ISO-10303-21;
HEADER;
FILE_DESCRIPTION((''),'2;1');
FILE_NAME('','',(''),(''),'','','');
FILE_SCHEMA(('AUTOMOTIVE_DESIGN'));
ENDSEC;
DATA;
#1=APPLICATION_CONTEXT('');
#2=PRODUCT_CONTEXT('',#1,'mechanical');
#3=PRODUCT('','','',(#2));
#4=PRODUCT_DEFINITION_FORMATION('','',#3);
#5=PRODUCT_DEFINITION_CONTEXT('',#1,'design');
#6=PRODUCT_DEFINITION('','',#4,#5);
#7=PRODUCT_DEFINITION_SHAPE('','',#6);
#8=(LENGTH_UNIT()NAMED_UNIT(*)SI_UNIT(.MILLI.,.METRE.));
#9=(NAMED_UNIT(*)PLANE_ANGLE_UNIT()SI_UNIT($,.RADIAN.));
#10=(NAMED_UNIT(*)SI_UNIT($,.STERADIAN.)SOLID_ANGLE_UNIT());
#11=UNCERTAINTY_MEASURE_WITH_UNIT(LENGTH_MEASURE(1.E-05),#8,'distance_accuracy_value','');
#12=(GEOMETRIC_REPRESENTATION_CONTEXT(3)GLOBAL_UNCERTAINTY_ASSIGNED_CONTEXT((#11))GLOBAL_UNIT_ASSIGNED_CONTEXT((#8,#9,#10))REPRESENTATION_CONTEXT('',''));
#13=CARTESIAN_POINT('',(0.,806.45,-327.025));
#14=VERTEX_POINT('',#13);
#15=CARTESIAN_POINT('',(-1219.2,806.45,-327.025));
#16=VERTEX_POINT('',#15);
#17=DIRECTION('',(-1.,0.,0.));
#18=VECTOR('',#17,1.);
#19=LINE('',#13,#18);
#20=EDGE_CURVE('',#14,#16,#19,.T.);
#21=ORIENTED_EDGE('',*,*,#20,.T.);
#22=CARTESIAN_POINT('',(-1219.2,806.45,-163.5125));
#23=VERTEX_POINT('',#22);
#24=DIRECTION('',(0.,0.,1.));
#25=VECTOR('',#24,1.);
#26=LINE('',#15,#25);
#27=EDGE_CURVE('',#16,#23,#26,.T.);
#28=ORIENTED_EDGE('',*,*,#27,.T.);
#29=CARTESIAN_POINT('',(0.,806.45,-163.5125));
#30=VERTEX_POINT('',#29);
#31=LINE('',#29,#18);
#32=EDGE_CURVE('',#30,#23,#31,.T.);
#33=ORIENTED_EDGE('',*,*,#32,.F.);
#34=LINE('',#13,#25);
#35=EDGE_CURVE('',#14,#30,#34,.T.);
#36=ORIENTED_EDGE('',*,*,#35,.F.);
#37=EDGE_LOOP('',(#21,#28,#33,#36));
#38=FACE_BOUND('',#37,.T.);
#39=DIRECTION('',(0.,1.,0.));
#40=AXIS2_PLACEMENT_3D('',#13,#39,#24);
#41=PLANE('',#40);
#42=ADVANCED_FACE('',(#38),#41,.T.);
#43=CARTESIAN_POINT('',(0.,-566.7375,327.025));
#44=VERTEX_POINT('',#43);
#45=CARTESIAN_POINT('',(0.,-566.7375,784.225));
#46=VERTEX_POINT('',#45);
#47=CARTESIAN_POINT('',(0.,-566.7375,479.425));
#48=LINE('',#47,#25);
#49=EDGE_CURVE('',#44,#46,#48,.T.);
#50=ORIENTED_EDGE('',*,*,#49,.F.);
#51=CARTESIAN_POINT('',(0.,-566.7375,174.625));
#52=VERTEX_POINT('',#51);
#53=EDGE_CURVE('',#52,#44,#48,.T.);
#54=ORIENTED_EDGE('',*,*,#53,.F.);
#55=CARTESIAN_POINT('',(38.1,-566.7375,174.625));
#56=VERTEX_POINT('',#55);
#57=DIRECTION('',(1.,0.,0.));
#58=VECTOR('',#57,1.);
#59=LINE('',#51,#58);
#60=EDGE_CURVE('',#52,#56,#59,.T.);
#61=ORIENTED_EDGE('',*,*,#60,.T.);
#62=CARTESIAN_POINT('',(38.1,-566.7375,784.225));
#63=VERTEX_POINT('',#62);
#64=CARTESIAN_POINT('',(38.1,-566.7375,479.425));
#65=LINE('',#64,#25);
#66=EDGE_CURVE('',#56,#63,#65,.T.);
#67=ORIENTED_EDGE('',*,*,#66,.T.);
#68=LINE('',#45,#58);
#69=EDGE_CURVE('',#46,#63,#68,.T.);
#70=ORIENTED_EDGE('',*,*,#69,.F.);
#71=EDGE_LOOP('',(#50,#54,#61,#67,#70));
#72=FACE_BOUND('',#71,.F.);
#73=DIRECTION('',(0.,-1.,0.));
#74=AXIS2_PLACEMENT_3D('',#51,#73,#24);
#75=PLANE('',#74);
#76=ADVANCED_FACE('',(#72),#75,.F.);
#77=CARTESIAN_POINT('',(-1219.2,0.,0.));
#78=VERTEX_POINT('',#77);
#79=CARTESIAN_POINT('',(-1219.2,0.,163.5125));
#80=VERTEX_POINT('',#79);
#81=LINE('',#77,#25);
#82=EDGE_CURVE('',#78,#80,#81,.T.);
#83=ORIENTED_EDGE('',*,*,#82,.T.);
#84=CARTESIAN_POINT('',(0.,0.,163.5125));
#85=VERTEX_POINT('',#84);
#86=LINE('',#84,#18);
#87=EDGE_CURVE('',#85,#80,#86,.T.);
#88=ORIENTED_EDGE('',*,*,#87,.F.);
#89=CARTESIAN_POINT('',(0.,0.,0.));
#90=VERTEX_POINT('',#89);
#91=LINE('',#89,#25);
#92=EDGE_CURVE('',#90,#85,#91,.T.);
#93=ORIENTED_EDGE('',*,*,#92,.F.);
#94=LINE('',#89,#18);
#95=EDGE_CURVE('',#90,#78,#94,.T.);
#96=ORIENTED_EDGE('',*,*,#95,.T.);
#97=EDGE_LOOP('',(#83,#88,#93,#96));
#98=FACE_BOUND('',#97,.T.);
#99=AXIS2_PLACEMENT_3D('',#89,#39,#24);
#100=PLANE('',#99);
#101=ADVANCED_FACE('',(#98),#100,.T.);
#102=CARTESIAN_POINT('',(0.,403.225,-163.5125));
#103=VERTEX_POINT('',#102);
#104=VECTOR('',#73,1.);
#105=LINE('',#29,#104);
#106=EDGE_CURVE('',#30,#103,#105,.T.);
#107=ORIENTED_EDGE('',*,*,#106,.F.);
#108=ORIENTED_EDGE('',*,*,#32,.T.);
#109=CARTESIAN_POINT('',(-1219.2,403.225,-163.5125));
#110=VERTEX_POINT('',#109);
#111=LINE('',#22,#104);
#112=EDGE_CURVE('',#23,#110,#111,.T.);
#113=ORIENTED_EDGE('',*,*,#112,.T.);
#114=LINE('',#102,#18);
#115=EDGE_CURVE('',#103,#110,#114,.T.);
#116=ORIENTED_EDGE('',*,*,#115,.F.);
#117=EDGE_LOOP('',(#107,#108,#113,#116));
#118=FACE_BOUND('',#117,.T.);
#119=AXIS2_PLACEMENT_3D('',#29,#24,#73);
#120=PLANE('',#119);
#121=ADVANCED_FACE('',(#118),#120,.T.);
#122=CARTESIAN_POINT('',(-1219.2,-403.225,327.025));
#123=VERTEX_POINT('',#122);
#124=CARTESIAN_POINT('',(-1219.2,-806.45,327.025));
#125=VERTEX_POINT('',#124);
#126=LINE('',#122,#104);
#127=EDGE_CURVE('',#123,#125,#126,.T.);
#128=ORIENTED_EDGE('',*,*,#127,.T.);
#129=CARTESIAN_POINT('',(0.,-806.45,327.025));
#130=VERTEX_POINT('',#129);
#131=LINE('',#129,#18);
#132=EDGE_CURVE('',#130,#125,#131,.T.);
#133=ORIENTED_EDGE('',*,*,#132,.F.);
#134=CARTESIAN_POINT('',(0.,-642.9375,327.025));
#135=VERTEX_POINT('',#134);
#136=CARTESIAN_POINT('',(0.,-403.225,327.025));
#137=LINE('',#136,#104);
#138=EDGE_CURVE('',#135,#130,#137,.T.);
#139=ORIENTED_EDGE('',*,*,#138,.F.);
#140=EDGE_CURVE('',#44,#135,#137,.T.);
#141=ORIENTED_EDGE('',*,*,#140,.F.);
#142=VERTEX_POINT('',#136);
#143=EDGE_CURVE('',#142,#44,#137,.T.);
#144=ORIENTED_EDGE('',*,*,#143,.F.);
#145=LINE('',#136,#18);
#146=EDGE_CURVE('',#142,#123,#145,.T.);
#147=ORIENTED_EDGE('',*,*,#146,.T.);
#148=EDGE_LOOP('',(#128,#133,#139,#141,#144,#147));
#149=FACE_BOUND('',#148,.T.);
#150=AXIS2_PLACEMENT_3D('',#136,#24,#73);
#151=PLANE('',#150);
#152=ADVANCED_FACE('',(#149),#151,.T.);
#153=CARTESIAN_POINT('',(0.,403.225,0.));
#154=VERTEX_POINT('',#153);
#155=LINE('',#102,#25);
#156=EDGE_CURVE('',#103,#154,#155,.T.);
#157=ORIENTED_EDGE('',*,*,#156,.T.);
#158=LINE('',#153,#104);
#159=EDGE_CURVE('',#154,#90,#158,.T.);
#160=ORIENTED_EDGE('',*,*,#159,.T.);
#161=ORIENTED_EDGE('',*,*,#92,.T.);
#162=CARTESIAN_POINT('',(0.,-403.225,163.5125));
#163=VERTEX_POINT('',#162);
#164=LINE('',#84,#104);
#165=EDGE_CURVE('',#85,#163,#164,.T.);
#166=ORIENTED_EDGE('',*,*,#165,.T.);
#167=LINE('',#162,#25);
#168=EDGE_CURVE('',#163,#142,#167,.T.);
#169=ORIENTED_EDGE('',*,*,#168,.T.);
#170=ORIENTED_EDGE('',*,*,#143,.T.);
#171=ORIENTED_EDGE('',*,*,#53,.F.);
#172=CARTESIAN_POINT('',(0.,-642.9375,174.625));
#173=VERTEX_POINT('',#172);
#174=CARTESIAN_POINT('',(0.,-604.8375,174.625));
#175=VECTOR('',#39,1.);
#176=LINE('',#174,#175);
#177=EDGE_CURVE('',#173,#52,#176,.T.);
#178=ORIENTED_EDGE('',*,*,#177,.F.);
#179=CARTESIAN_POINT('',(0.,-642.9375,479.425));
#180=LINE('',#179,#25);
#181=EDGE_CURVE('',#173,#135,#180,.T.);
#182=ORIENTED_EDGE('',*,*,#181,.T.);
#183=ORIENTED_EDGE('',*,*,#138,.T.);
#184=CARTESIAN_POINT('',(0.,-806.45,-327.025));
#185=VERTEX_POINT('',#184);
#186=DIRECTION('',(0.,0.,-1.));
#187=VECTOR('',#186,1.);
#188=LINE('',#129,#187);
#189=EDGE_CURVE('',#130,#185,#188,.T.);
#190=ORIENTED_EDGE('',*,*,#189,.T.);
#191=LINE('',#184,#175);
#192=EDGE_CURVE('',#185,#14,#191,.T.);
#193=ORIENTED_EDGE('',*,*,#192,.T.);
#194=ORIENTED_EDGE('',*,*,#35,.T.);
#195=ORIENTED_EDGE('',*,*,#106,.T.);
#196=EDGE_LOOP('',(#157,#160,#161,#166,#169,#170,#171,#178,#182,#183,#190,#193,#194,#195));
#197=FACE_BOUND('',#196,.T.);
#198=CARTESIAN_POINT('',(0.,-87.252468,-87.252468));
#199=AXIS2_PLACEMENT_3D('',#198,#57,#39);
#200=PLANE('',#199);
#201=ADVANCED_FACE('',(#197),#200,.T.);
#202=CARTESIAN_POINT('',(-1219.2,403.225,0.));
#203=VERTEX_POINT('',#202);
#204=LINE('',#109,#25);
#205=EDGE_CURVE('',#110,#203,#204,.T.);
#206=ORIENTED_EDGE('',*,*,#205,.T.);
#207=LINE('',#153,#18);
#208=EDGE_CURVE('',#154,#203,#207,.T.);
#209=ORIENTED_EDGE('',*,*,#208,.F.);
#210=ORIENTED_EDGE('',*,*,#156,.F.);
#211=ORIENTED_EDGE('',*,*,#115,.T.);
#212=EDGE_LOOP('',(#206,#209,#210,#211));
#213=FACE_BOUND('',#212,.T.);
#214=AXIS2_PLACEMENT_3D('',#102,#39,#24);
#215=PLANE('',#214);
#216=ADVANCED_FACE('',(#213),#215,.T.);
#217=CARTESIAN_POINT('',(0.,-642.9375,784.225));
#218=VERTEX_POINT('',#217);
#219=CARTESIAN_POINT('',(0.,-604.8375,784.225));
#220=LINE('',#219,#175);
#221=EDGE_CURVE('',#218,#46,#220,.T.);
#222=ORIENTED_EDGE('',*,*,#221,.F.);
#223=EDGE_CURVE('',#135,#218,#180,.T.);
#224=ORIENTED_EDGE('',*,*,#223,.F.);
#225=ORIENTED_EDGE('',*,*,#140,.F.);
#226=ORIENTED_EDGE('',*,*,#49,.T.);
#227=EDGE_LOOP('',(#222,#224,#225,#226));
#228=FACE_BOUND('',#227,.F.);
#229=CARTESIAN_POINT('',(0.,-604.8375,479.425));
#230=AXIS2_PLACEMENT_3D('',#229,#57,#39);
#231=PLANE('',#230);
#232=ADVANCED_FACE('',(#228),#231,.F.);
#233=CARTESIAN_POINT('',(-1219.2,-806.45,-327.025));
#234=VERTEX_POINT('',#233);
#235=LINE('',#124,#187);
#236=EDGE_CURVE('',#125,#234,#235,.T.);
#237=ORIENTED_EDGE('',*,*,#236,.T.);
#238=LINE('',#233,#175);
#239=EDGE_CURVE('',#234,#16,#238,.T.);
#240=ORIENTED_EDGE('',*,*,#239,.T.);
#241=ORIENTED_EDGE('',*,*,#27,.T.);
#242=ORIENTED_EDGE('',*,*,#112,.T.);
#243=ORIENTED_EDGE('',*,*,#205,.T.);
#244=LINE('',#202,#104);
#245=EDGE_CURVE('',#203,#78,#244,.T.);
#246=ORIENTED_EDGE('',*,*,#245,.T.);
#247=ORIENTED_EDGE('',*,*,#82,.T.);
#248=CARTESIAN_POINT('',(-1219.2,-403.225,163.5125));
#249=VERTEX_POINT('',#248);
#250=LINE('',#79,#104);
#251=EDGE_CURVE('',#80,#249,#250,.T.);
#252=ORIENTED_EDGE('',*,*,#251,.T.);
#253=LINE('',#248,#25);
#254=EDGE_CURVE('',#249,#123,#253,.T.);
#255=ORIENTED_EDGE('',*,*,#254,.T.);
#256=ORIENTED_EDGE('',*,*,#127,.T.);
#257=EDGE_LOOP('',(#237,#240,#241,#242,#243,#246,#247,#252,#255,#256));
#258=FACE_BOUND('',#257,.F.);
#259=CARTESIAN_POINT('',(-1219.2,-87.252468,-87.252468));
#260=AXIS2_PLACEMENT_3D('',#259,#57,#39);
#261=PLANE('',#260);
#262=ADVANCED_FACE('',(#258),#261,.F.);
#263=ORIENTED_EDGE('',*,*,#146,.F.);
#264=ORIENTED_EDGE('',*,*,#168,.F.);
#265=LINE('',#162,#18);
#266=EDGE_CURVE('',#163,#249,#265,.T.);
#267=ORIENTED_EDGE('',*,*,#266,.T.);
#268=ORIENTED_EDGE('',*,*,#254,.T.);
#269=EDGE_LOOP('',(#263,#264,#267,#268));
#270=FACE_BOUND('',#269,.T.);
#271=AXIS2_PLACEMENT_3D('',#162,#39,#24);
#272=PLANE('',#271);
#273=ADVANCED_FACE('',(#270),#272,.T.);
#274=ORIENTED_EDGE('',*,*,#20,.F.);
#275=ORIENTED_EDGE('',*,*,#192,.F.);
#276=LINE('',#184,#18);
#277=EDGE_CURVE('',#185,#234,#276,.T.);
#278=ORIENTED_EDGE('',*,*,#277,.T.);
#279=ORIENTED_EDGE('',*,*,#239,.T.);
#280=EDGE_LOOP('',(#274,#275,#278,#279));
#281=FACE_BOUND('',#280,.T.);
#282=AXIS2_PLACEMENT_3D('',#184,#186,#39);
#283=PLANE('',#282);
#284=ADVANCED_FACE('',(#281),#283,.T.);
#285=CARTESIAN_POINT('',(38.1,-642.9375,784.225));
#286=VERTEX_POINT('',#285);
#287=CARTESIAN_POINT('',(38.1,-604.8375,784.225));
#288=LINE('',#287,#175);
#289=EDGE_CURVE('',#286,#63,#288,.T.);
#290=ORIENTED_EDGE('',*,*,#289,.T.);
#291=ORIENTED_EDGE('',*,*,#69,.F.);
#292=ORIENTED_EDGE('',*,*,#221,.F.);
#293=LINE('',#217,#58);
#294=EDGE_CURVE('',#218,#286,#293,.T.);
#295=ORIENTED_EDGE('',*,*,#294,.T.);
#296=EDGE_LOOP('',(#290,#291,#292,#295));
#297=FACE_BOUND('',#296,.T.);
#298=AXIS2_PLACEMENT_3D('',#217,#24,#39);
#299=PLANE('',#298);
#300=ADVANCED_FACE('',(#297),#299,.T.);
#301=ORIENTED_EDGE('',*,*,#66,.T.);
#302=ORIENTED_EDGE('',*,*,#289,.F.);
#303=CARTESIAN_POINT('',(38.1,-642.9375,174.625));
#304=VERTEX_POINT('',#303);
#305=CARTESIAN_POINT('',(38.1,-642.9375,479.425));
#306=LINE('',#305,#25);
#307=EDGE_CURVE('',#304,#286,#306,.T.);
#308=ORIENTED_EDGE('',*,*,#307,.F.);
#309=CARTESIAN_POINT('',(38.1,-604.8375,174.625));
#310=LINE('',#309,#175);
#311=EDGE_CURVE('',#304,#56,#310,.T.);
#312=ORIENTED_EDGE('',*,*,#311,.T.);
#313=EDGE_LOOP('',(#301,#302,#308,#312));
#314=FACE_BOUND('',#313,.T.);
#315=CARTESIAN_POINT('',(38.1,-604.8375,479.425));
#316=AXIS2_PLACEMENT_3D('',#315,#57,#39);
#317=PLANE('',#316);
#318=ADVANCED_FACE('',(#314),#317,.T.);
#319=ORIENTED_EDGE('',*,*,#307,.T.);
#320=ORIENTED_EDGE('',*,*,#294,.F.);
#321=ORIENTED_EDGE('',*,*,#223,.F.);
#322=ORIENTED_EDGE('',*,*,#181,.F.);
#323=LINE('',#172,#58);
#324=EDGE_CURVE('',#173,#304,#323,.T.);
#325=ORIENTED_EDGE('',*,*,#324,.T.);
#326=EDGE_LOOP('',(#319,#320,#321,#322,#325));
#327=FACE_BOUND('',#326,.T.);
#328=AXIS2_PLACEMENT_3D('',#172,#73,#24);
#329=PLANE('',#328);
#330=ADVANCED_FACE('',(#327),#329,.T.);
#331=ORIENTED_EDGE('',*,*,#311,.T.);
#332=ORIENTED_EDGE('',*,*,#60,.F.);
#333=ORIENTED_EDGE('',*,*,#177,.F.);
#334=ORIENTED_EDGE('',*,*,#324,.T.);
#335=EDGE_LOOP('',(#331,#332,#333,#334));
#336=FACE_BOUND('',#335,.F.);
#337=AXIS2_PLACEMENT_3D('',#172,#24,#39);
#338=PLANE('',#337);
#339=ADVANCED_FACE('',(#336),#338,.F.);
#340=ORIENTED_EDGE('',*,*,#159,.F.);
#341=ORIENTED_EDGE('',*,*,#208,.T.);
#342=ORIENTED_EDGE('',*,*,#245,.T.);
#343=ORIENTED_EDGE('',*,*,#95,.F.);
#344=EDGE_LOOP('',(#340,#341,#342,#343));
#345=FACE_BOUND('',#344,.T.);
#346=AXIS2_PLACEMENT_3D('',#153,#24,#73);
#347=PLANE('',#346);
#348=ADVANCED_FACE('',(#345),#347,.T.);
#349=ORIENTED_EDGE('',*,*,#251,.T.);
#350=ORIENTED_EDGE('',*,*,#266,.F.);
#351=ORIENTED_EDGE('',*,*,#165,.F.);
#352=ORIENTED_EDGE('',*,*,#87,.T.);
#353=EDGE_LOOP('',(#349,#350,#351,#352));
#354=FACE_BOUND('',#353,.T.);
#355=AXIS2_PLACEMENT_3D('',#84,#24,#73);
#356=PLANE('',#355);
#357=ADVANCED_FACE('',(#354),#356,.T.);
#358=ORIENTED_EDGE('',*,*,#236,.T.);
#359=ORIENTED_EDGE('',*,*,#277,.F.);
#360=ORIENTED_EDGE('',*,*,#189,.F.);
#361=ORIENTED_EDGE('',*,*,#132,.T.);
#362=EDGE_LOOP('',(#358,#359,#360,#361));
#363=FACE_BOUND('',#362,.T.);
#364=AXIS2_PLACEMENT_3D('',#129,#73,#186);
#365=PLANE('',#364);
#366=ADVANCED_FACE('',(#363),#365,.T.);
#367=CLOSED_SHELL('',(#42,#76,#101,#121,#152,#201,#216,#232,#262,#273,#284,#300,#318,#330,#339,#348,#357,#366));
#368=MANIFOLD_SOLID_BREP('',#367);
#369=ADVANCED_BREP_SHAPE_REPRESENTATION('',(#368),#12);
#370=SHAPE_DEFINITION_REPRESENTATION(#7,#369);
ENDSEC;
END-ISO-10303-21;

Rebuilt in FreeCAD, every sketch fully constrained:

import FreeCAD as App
import Part
import Sketcher

V = App.Vector
Q = App.Units.Quantity

doc = App.newDocument("Part")
params = doc.addObject("Spreadsheet::Sheet", "Params")
for row, (alias, value) in enumerate([
    ("sketch1_width", "63.5 in"),
    ("sketch1_height", "25.75 in"),
    ("pad1_length", "48 in"),
    ("sketch2_width", "3 in"),
    ("sketch2_height", "24 in"),
    ("pad2_length", "1.5 in"),
], start=1):
    params.set(f"A{row}", alias)
    params.set(f"B{row}", "=" + value)
    params.setAlias(f"B{row}", alias)

body = doc.addObject("PartDesign::Body", "Body")

sketch1 = doc.addObject("Sketcher::SketchObject", "Sketch")
body.addObject(sketch1)
sketch1.AttachmentSupport = (doc.YZ_Plane, [""])
sketch1.MapMode = "FlatFace"
sketch1.addGeometry(Part.LineSegment(V(-806, 327, 0), V(-806, -327, 0)), False)
sketch1.addGeometry(Part.LineSegment(V(-806, -327, 0), V(806, -327, 0)), False)
sketch1.addGeometry(Part.LineSegment(V(806, -327, 0), V(806, -164, 0)), False)
sketch1.addGeometry(Part.LineSegment(V(806, -164, 0), V(403, -164, 0)), False)
sketch1.addGeometry(Part.LineSegment(V(403, -164, 0), V(403, 0, 0)), False)
sketch1.addGeometry(Part.LineSegment(V(403, 0, 0), V(0, 0, 0)), False)
sketch1.addGeometry(Part.LineSegment(V(0, 0, 0), V(0, 164, 0)), False)
sketch1.addGeometry(Part.LineSegment(V(0, 164, 0), V(-403, 164, 0)), False)
sketch1.addGeometry(Part.LineSegment(V(-403, 164, 0), V(-403, 327, 0)), False)
sketch1.addGeometry(Part.LineSegment(V(-403, 327, 0), V(-806, 327, 0)), False)
sketch1.addConstraint(Sketcher.Constraint("Coincident", 0, 2, 1, 1))
sketch1.addConstraint(Sketcher.Constraint("Coincident", 1, 2, 2, 1))
sketch1.addConstraint(Sketcher.Constraint("Coincident", 2, 2, 3, 1))
sketch1.addConstraint(Sketcher.Constraint("Coincident", 3, 2, 4, 1))
sketch1.addConstraint(Sketcher.Constraint("Coincident", 4, 2, 5, 1))
sketch1.addConstraint(Sketcher.Constraint("Coincident", 5, 2, 6, 1))
sketch1.addConstraint(Sketcher.Constraint("Coincident", 6, 2, 7, 1))
sketch1.addConstraint(Sketcher.Constraint("Coincident", 7, 2, 8, 1))
sketch1.addConstraint(Sketcher.Constraint("Coincident", 8, 2, 9, 1))
sketch1.addConstraint(Sketcher.Constraint("Coincident", 9, 2, 0, 1))
sketch1.addConstraint(Sketcher.Constraint("Vertical", 0))
sketch1.addConstraint(Sketcher.Constraint("Horizontal", 1))
sketch1.addConstraint(Sketcher.Constraint("Vertical", 2))
sketch1.addConstraint(Sketcher.Constraint("Horizontal", 3))
sketch1.addConstraint(Sketcher.Constraint("Vertical", 4))
sketch1.addConstraint(Sketcher.Constraint("Horizontal", 5))
sketch1.addConstraint(Sketcher.Constraint("Vertical", 6))
sketch1.addConstraint(Sketcher.Constraint("Horizontal", 7))
sketch1.addConstraint(Sketcher.Constraint("Vertical", 8))
sketch1.addConstraint(Sketcher.Constraint("Horizontal", 9))
sketch1.addConstraint(Sketcher.Constraint("Coincident", 5, 2, -1, 1))
sketch1.addConstraint(Sketcher.Constraint("Symmetric", 3, 2, 7, 2, -1, 1))
sketch1.addConstraint(Sketcher.Constraint("Symmetric", 1, 2, 9, 2, -1, 1))
sketch1.addConstraint(Sketcher.Constraint("Equal", 3, 5))
sketch1.addConstraint(Sketcher.Constraint("Equal", 2, 4))
sketch1.addConstraint(Sketcher.Constraint("DistanceX", 1, 1, 1, 2, Q("63.5 in")))
sketch1.addConstraint(Sketcher.Constraint("DistanceY", 0, 2, 0, 1, Q("25.75 in")))
sketch1.setExpression("Constraints[25]", "Params.sketch1_width")
sketch1.setExpression("Constraints[26]", "Params.sketch1_height")
pad1 = doc.addObject("PartDesign::Pad", "Pad")
body.addObject(pad1)
pad1.Profile = sketch1
pad1.setExpression("Length", "Params.pad1_length")
pad1.Reversed = True

sketch2 = doc.addObject("Sketcher::SketchObject", "Sketch001")
body.addObject(sketch2)
sketch2.AttachmentSupport = (doc.YZ_Plane, [""])
sketch2.MapMode = "FlatFace"
sketch2.addGeometry(Part.LineSegment(V(-643, 784, 0), V(-643, 175, 0)), False)
sketch2.addGeometry(Part.LineSegment(V(-643, 175, 0), V(-567, 175, 0)), False)
sketch2.addGeometry(Part.LineSegment(V(-567, 175, 0), V(-567, 784, 0)), False)
sketch2.addGeometry(Part.LineSegment(V(-567, 784, 0), V(-643, 784, 0)), False)
sketch2.addConstraint(Sketcher.Constraint("Coincident", 0, 2, 1, 1))
sketch2.addConstraint(Sketcher.Constraint("Coincident", 1, 2, 2, 1))
sketch2.addConstraint(Sketcher.Constraint("Coincident", 2, 2, 3, 1))
sketch2.addConstraint(Sketcher.Constraint("Coincident", 3, 2, 0, 1))
sketch2.addConstraint(Sketcher.Constraint("Vertical", 0))
sketch2.addConstraint(Sketcher.Constraint("Horizontal", 1))
sketch2.addConstraint(Sketcher.Constraint("Vertical", 2))
sketch2.addConstraint(Sketcher.Constraint("Horizontal", 3))
sketch2.addConstraint(Sketcher.Constraint("DistanceX", 1, 1, 1, 2, Q("3 in")))
sketch2.addConstraint(Sketcher.Constraint("DistanceY", 0, 2, 0, 1, Q("24 in")))
sketch2.addConstraint(Sketcher.Constraint("DistanceX", 0, 2, -1, 1, Q("25.3125 in")))
sketch2.addConstraint(Sketcher.Constraint("DistanceY", -1, 1, 0, 2, Q("6.875 in")))
sketch2.setExpression("Constraints[8]", "Params.sketch2_width")
sketch2.setExpression("Constraints[9]", "Params.sketch2_height")
pad2 = doc.addObject("PartDesign::Pad", "Pad001")
body.addObject(pad2)
pad2.Profile = sketch2
pad2.setExpression("Length", "Params.pad2_length")

doc.recompute()
